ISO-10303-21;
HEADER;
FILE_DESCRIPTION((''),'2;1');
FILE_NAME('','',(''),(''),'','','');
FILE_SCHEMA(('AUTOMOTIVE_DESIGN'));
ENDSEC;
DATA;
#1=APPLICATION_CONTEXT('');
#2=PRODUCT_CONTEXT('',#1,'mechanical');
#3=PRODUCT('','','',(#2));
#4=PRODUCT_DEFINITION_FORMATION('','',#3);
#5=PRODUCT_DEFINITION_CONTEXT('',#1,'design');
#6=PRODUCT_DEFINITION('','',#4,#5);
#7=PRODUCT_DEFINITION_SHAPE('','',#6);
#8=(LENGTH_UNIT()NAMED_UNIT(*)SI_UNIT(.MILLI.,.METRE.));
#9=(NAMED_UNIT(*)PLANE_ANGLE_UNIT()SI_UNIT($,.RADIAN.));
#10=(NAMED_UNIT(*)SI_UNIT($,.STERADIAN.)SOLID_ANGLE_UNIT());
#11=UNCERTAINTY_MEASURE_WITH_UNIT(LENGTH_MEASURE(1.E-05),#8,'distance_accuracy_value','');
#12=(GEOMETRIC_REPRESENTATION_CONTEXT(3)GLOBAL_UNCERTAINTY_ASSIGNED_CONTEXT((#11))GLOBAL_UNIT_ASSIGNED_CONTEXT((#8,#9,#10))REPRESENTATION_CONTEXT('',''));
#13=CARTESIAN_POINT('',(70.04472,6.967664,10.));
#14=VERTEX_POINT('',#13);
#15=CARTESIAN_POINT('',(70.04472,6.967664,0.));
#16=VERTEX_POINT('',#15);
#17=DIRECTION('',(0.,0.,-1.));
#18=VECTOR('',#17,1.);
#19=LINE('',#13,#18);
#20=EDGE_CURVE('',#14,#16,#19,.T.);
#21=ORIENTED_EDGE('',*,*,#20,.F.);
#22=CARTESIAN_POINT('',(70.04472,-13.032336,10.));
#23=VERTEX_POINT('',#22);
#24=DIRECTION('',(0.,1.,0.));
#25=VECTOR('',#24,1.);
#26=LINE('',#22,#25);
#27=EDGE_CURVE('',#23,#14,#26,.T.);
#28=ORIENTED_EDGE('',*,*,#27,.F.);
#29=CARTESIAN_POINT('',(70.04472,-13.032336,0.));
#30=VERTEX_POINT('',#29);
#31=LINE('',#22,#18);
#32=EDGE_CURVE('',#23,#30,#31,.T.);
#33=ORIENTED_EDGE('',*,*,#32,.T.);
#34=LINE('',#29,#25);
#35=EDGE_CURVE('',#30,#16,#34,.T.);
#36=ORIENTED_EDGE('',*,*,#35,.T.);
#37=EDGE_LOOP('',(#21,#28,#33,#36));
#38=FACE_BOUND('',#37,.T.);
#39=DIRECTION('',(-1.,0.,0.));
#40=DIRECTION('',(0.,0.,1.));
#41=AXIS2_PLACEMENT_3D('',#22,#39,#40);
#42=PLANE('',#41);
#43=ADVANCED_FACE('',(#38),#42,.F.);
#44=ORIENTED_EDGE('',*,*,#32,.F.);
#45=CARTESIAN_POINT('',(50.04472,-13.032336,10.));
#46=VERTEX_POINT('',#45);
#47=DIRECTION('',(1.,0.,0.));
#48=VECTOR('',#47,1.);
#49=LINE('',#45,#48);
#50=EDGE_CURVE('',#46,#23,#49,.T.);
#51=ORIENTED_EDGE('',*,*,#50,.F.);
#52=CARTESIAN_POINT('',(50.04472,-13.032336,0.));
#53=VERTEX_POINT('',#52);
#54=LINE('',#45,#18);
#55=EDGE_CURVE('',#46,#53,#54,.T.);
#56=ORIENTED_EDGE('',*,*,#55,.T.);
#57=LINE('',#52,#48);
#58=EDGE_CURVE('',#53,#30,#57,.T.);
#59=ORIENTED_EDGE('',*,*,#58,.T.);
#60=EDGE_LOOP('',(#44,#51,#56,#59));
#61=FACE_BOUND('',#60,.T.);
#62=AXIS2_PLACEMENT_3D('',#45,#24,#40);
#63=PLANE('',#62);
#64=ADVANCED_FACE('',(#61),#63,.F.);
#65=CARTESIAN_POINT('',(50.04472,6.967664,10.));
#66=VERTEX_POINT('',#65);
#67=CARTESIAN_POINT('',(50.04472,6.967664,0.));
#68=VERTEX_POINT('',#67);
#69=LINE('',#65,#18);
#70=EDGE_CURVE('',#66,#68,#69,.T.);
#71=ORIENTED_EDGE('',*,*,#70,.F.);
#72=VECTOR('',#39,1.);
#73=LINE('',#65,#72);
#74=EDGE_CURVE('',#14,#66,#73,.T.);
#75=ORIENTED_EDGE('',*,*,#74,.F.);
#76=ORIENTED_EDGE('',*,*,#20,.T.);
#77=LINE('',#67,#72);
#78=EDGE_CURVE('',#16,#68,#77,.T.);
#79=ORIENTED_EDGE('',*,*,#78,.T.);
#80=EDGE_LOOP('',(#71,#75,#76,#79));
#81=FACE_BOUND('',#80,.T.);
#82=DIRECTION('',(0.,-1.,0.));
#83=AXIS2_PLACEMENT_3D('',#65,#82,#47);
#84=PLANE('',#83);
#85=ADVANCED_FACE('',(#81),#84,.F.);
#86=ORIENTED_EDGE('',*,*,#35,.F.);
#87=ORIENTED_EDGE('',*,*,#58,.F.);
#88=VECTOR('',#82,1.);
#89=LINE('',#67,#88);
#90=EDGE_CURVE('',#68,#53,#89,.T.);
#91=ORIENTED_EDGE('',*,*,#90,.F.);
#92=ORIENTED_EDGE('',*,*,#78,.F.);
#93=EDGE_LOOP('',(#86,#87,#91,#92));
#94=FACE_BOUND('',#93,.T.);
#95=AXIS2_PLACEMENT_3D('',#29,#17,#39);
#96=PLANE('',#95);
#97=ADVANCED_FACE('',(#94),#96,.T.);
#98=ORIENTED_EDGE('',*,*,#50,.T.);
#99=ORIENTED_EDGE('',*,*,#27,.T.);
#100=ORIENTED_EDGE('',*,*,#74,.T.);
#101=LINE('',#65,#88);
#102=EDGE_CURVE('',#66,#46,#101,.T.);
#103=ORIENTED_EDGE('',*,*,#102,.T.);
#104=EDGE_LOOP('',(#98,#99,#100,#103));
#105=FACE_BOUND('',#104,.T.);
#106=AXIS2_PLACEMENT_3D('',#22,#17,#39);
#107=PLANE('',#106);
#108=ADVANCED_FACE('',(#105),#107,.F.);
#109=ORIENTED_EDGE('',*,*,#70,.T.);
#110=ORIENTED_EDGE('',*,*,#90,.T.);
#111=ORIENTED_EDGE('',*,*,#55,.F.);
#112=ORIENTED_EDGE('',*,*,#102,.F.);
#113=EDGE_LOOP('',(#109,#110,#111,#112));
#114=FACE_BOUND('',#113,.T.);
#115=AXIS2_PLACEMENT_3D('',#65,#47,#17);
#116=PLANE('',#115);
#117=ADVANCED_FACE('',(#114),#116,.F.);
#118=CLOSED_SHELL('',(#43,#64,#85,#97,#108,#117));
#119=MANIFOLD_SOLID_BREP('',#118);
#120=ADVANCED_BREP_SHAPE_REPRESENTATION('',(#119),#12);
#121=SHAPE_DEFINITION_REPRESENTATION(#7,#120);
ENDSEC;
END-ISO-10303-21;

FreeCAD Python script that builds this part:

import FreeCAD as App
import Part
import Sketcher

doc = App.newDocument("Part")
body = doc.addObject("PartDesign::Body", "Body")

sketch1 = body.newObject("Sketcher::SketchObject", "Sketch")
sketch1.AttachmentSupport = (doc.getObject("XY_Plane"), [""])
sketch1.MapMode = "FlatFace"
sketch1.addGeometry(Part.LineSegment(App.Vector(50, 7, 0), App.Vector(50, -13, 0)), False)
sketch1.addGeometry(Part.LineSegment(App.Vector(50, -13, 0), App.Vector(70, -13, 0)), False)
sketch1.addGeometry(Part.LineSegment(App.Vector(70, -13, 0), App.Vector(70, 7, 0)), False)
sketch1.addGeometry(Part.LineSegment(App.Vector(70, 7, 0), App.Vector(50, 7, 0)), False)
sketch1.addConstraint(Sketcher.Constraint("Coincident", 0, 2, 1, 1))
sketch1.addConstraint(Sketcher.Constraint("Coincident", 1, 2, 2, 1))
sketch1.addConstraint(Sketcher.Constraint("Coincident", 2, 2, 3, 1))
sketch1.addConstraint(Sketcher.Constraint("Coincident", 3, 2, 0, 1))
sketch1.addConstraint(Sketcher.Constraint("Vertical", 0))
sketch1.addConstraint(Sketcher.Constraint("Horizontal", 1))
sketch1.addConstraint(Sketcher.Constraint("Vertical", 2))
sketch1.addConstraint(Sketcher.Constraint("Horizontal", 3))
sketch1.addConstraint(Sketcher.Constraint("Equal", 3, 0))
sketch1.addConstraint(Sketcher.Constraint("DistanceX", 1, 1, 1, 2, 20.0))
sketch1.addConstraint(Sketcher.Constraint("DistanceX", -1, 1, 0, 2, 50.04472))
sketch1.addConstraint(Sketcher.Constraint("DistanceY", 0, 2, -1, 1, 13.032336))
pad1 = body.newObject("PartDesign::Pad", "Pad")
pad1.Profile = sketch1
pad1.Length = 10

doc.recompute()
